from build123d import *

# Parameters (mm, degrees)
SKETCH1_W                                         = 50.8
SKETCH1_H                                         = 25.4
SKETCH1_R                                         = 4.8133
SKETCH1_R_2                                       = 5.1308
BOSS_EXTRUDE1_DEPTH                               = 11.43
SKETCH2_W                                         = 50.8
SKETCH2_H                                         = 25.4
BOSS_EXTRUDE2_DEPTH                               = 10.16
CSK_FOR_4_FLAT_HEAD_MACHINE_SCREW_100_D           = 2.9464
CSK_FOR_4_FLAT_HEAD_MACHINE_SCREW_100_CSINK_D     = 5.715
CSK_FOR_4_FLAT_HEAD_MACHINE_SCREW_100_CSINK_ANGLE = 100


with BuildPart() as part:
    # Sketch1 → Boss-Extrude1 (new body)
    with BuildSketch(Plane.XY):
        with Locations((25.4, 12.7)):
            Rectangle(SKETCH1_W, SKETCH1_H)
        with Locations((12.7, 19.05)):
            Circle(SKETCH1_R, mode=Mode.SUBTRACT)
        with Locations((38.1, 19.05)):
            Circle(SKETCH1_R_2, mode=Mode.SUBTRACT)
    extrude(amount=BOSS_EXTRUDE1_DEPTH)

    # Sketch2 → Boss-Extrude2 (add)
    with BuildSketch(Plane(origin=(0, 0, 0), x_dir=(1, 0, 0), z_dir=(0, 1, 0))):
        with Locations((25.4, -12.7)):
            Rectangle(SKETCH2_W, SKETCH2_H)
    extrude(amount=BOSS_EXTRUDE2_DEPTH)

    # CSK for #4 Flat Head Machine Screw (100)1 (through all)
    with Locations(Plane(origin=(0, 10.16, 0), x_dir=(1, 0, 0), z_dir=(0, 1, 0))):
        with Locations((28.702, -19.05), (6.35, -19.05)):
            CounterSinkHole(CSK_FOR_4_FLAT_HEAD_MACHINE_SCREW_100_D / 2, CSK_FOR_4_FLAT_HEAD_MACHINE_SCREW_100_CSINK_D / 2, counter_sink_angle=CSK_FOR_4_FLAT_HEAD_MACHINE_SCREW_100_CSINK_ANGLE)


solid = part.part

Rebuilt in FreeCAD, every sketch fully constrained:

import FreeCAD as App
import Part
import Sketcher
Q = App.Units.Quantity

doc = App.newDocument("Part")
body = doc.addObject("PartDesign::Body", "Body")

# Sketch on XY plane
sketch1 = body.newObject("Sketcher::SketchObject", "Sketch")
sketch1.AttachmentSupport = (doc.getObject("XY_Plane"), [""])
sketch1.MapMode = "FlatFace"
sketch1.addGeometry(Part.LineSegment(App.Vector(0, 25.4, 0), App.Vector(0, 0, 0)), False)
sketch1.addGeometry(Part.LineSegment(App.Vector(0, 0, 0), App.Vector(50.8, 0, 0)), False)
sketch1.addGeometry(Part.LineSegment(App.Vector(50.8, 0, 0), App.Vector(50.8, 25.4, 0)), False)
sketch1.addGeometry(Part.LineSegment(App.Vector(50.8, 25.4, 0), App.Vector(0, 25.4, 0)), False)
sketch1.addGeometry(Part.Circle(App.Vector(12.7, 19.1, 0), App.Vector(0, 0, 1), 4.8), False)
sketch1.addGeometry(Part.Circle(App.Vector(38.1, 19.1, 0), App.Vector(0, 0, 1), 5.1), False)
sketch1.addConstraint(Sketcher.Constraint("Coincident", 0, 2, 1, 1))
sketch1.addConstraint(Sketcher.Constraint("Coincident", 1, 2, 2, 1))
sketch1.addConstraint(Sketcher.Constraint("Coincident", 2, 2, 3, 1))
sketch1.addConstraint(Sketcher.Constraint("Coincident", 3, 2, 0, 1))
sketch1.addConstraint(Sketcher.Constraint("Vertical", 0))
sketch1.addConstraint(Sketcher.Constraint("Horizontal", 1))
sketch1.addConstraint(Sketcher.Constraint("Vertical", 2))
sketch1.addConstraint(Sketcher.Constraint("Horizontal", 3))
sketch1.addConstraint(Sketcher.Constraint("Coincident", 0, 2, -1, 1))
sketch1.addConstraint(Sketcher.Constraint("Horizontal", 4, 3, 5, 3))
sketch1.addConstraint(Sketcher.Constraint("DistanceX", 1, 1, 1, 2, Q("2 in")))
sketch1.addConstraint(Sketcher.Constraint("DistanceY", 0, 2, 0, 1, Q("1 in")))
sketch1.addConstraint(Sketcher.Constraint("Diameter", 4, Q("0.379 in")))
sketch1.addConstraint(Sketcher.Constraint("Diameter", 5, Q("0.404 in")))
sketch1.addConstraint(Sketcher.Constraint("DistanceX", 4, 3, 5, 3, Q("1 in")))
sketch1.addConstraint(Sketcher.Constraint("DistanceX", -1, 1, 4, 3, Q("0.5 in")))
sketch1.addConstraint(Sketcher.Constraint("DistanceY", -1, 1, 4, 3, Q("0.75 in")))
pad1 = body.newObject("PartDesign::Pad", "Pad")
pad1.Profile = sketch1
pad1.Length = Q("0.45 in")

# Sketch on XZ plane
sketch2 = body.newObject("Sketcher::SketchObject", "Sketch001")
sketch2.AttachmentSupport = (doc.getObject("XZ_Plane"), [""])
sketch2.MapMode = "FlatFace"
sketch2.addGeometry(Part.LineSegment(App.Vector(0, 0, 0), App.Vector(0, 25, 0)), False)
sketch2.addGeometry(Part.LineSegment(App.Vector(0, 25, 0), App.Vector(51, 25, 0)), False)
sketch2.addGeometry(Part.LineSegment(App.Vector(51, 25, 0), App.Vector(51, 0, 0)), False)
sketch2.addGeometry(Part.LineSegment(App.Vector(51, 0, 0), App.Vector(0, 0, 0)), False)
sketch2.addConstraint(Sketcher.Constraint("Coincident", 0, 2, 1, 1))
sketch2.addConstraint(Sketcher.Constraint("Coincident", 1, 2, 2, 1))
sketch2.addConstraint(Sketcher.Constraint("Coincident", 2, 2, 3, 1))
sketch2.addConstraint(Sketcher.Constraint("Coincident", 3, 2, 0, 1))
sketch2.addConstraint(Sketcher.Constraint("Vertical", 0))
sketch2.addConstraint(Sketcher.Constraint("Horizontal", 1))
sketch2.addConstraint(Sketcher.Constraint("Vertical", 2))
sketch2.addConstraint(Sketcher.Constraint("Horizontal", 3))
sketch2.addConstraint(Sketcher.Constraint("Coincident", 3, 2, -1, 1))
sketch2.addConstraint(Sketcher.Constraint("DistanceX", 1, 1, 1, 2, Q("2 in")))
sketch2.addConstraint(Sketcher.Constraint("DistanceY", 0, 1, 0, 2, Q("1 in")))
pad2 = body.newObject("PartDesign::Pad", "Pad001")
pad2.Profile = sketch2
pad2.Length = Q("0.4 in")
pad2.Reversed = True

# Sketch on XZ plane
sketch3 = body.newObject("Sketcher::SketchObject", "Sketch002")
sketch3.AttachmentSupport = (doc.getObject("XZ_Plane"), [""])
sketch3.MapMode = "FlatFace"
sketch3.AttachmentOffset = App.Placement(App.Vector(0, 0, -0.4 * 25.4), App.Rotation())
sketch3.addGeometry(Part.Circle(App.Vector(28.7, 19.1, 0), App.Vector(0, 0, 1), 1.5), False)
sketch3.addGeometry(Part.Circle(App.Vector(6.3, 19.1, 0), App.Vector(0, 0, 1), 1.5), False)
sketch3.addConstraint(Sketcher.Constraint("Equal", 0, 1))
sketch3.addConstraint(Sketcher.Constraint("Horizontal", 0, 3, 1, 3))
sketch3.addConstraint(Sketcher.Constraint("Diameter", 0, Q("0.116 in")))
sketch3.addConstraint(Sketcher.Constraint("DistanceX", -1, 1, 0, 3, Q("1.13 in")))
sketch3.addConstraint(Sketcher.Constraint("DistanceY", -1, 1, 0, 3, Q("0.75 in")))
sketch3.addConstraint(Sketcher.Constraint("DistanceX", -1, 1, 1, 3, Q("0.25 in")))
doc.recompute()
hole = body.newObject("PartDesign::Hole", "Hole")
hole.Profile = sketch3
hole.ThreadType = "None"
hole.Diameter = Q("0.116 in")
hole.DepthType = "ThroughAll"
hole.HoleCutType = "Countersink"
hole.HoleCutDiameter = Q("0.225 in")
hole.HoleCutCountersinkAngle = 100
hole.Reversed = True

doc.recompute()
